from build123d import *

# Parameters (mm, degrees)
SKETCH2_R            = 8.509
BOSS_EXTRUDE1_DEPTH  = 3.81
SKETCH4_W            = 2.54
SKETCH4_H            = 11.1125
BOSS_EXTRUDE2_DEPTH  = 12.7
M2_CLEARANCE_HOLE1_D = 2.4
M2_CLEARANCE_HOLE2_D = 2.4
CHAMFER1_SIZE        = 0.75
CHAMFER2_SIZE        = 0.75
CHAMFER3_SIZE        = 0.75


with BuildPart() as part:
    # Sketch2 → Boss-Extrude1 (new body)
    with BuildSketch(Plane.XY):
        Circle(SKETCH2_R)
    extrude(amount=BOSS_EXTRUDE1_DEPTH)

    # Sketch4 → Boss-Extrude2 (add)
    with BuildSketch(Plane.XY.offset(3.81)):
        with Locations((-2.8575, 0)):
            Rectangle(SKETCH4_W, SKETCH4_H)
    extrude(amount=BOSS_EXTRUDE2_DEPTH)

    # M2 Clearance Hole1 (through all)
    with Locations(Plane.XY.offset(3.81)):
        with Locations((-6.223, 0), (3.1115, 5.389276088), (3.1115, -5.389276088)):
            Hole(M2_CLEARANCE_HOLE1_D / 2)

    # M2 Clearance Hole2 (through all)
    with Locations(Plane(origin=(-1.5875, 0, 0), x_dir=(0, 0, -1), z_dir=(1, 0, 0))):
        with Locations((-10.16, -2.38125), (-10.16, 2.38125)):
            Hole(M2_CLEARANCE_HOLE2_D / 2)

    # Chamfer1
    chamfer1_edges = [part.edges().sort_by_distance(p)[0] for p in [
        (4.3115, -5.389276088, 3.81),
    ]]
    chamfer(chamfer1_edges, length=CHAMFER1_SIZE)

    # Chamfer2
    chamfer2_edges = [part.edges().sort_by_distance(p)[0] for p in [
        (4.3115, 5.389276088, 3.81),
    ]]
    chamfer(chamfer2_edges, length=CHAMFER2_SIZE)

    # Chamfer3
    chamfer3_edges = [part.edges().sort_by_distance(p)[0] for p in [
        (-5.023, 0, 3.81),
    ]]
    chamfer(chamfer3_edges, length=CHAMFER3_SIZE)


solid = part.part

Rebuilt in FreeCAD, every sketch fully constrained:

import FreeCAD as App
import Part
import Sketcher

V = App.Vector
Q = App.Units.Quantity


def edges_at(feature, points):
    """Names of the edges that pass closest to the given points."""
    edges = feature.Shape.Edges
    near = lambda p: min(range(len(edges)), key=lambda i: edges[i].distToShape(Part.Vertex(*p))[0])
    return sorted({f"Edge{near(p) + 1}" for p in points})

doc = App.newDocument("Part")
params = doc.addObject("Spreadsheet::Sheet", "Params")
for row, (alias, value) in enumerate([
    ("sketch1_diameter", "0.67 in"),
    ("pad1_length", "0.15 in"),
    ("sketch2_width", "0.1 in"),
    ("sketch2_height", "0.4375 in"),
    ("pad2_length", "0.5 in"),
    ("hole_diameter", "2.4 mm"),
    ("hole2_diameter", "2.4 mm"),
    ("chamfer_size", "0.75 mm"),
    ("chamfer2_size", "0.75 mm"),
    ("chamfer3_size", "0.75 mm"),
], start=1):
    params.set(f"A{row}", alias)
    params.set(f"B{row}", "=" + value)
    params.setAlias(f"B{row}", alias)

body = doc.addObject("PartDesign::Body", "Body")

sketch1 = body.newObject("Sketcher::SketchObject", "Sketch")
sketch1.AttachmentSupport = (doc.getObject("XY_Plane"), [""])
sketch1.MapMode = "FlatFace"
sketch1.addGeometry(Part.Circle(V(0, 0, 0), V(0, 0, 1), 9), False)
sketch1.addConstraint([
    Sketcher.Constraint("Coincident", 0, 3, -1, 1),
    Sketcher.Constraint("Diameter", 0, Q("0.67 in")),
])
sketch1.setExpression("Constraints[1]", "Params.sketch1_diameter")
pad1 = body.newObject("PartDesign::Pad", "Pad")
pad1.Profile = sketch1
pad1.setExpression("Length", "Params.pad1_length")

sketch2 = body.newObject("Sketcher::SketchObject", "Sketch001")
sketch2.AttachmentSupport = (doc.getObject("XY_Plane"), [""])
sketch2.MapMode = "FlatFace"
sketch2.AttachmentOffset = App.Placement(V(0, 0, 0.15 * 25.4), App.Rotation())
sketch2.addGeometry([
    Part.LineSegment(V(-4.1, 5.6, 0), V(-4.1, -5.6, 0)),
    Part.LineSegment(V(-4.1, -5.6, 0), V(-1.6, -5.6, 0)),
    Part.LineSegment(V(-1.6, -5.6, 0), V(-1.6, 5.6, 0)),
    Part.LineSegment(V(-1.6, 5.6, 0), V(-4.1, 5.6, 0)),
], False)
sketch2.addConstraint([
    Sketcher.Constraint("Coincident", 0, 2, 1, 1),
    Sketcher.Constraint("Coincident", 1, 2, 2, 1),
    Sketcher.Constraint("Coincident", 2, 2, 3, 1),
    Sketcher.Constraint("Coincident", 3, 2, 0, 1),
    Sketcher.Constraint("Vertical", 0),
    Sketcher.Constraint("Horizontal", 1),
    Sketcher.Constraint("Vertical", 2),
    Sketcher.Constraint("Horizontal", 3),
    Sketcher.Constraint("DistanceX", 1, 1, 1, 2, Q("0.1 in")),
    Sketcher.Constraint("DistanceY", 0, 2, 0, 1, Q("0.4375 in")),
    Sketcher.Constraint("DistanceY", 0, 2, -1, 1, Q("0.21875 in")),
    Sketcher.Constraint("DistanceX", 1, 2, -1, 1, Q("0.0625 in")),
])
sketch2.setExpression("Constraints[8]", "Params.sketch2_width")
sketch2.setExpression("Constraints[9]", "Params.sketch2_height")
pad2 = body.newObject("PartDesign::Pad", "Pad001")
pad2.Profile = sketch2
pad2.setExpression("Length", "Params.pad2_length")

sketch3 = body.newObject("Sketcher::SketchObject", "Sketch002")
sketch3.AttachmentSupport = (doc.getObject("XY_Plane"), [""])
sketch3.MapMode = "FlatFace"
sketch3.AttachmentOffset = App.Placement(V(0, 0, 0.15 * 25.4), App.Rotation())
sketch3.addGeometry([
    Part.Circle(V(-6.2, 0, 0), V(0, 0, 1), 1.2),
    Part.Circle(V(3.1, 5.4, 0), V(0, 0, 1), 1.2),
    Part.Circle(V(3.1, -5.4, 0), V(0, 0, 1), 1.2),
], False)
sketch3.addConstraint([
    Sketcher.Constraint("Equal", 0, 1),
    Sketcher.Constraint("Equal", 1, 2),
    Sketcher.Constraint("Symmetric", 1, 3, 2, 3, -1),
    Sketcher.Constraint("PointOnObject", 0, 3, -1),
    Sketcher.Constraint("Diameter", 0, 2.4),
    Sketcher.Constraint("DistanceX", 0, 3, -1, 1, Q("0.245 in")),
    Sketcher.Constraint("DistanceX", -1, 1, 1, 3, Q("0.1225 in")),
    Sketcher.Constraint("DistanceY", -1, 1, 1, 3, 5.389276),
])
doc.recompute()
hole = body.newObject("PartDesign::Hole", "Hole")
hole.Profile = sketch3
hole.ThreadType = "None"
hole.setExpression("Diameter", "Params.hole_diameter")
hole.DepthType = "ThroughAll"

sketch4 = body.newObject("Sketcher::SketchObject", "Sketch003")
sketch4.AttachmentSupport = (doc.getObject("YZ_Plane"), [""])
sketch4.MapMode = "FlatFace"
sketch4.AttachmentOffset = App.Placement(V(0, 0, -0.0625 * 25.4), App.Rotation())
sketch4.addGeometry([
    Part.Circle(V(-2.4, 10.2, 0), V(0, 0, 1), 1.2),
    Part.Circle(V(2.4, 10.2, 0), V(0, 0, 1), 1.2),
], False)
sketch4.addConstraint([
    Sketcher.Constraint("Equal", 0, 1),
    Sketcher.Constraint("Symmetric", 0, 3, 1, 3, -2),
    Sketcher.Constraint("DistanceY", -1, 1, 0, 3, Q("0.4 in")),
    Sketcher.Constraint("Diameter", 0, 2.4),
    Sketcher.Constraint("DistanceX", 0, 3, -1, 1, Q("0.09375 in")),
])
doc.recompute()
hole2 = body.newObject("PartDesign::Hole", "Hole001")
hole2.Profile = sketch4
hole2.ThreadType = "None"
hole2.setExpression("Diameter", "Params.hole2_diameter")
hole2.DepthType = "ThroughAll"
doc.recompute()

chamfer = body.newObject("PartDesign::Chamfer", "Chamfer")
chamfer.Base = (hole2, edges_at(hole2, [(4.311, -5.389, 3.81)]))
chamfer.setExpression("Size", "Params.chamfer_size")
doc.recompute()

chamfer2 = body.newObject("PartDesign::Chamfer", "Chamfer001")
chamfer2.Base = (chamfer, edges_at(chamfer, [(4.311, 5.389, 3.81)]))
chamfer2.setExpression("Size", "Params.chamfer2_size")
doc.recompute()

chamfer3 = body.newObject("PartDesign::Chamfer", "Chamfer002")
chamfer3.Base = (chamfer2, edges_at(chamfer2, [(-5.023, 0, 3.81)]))
chamfer3.setExpression("Size", "Params.chamfer3_size")

doc.recompute()
